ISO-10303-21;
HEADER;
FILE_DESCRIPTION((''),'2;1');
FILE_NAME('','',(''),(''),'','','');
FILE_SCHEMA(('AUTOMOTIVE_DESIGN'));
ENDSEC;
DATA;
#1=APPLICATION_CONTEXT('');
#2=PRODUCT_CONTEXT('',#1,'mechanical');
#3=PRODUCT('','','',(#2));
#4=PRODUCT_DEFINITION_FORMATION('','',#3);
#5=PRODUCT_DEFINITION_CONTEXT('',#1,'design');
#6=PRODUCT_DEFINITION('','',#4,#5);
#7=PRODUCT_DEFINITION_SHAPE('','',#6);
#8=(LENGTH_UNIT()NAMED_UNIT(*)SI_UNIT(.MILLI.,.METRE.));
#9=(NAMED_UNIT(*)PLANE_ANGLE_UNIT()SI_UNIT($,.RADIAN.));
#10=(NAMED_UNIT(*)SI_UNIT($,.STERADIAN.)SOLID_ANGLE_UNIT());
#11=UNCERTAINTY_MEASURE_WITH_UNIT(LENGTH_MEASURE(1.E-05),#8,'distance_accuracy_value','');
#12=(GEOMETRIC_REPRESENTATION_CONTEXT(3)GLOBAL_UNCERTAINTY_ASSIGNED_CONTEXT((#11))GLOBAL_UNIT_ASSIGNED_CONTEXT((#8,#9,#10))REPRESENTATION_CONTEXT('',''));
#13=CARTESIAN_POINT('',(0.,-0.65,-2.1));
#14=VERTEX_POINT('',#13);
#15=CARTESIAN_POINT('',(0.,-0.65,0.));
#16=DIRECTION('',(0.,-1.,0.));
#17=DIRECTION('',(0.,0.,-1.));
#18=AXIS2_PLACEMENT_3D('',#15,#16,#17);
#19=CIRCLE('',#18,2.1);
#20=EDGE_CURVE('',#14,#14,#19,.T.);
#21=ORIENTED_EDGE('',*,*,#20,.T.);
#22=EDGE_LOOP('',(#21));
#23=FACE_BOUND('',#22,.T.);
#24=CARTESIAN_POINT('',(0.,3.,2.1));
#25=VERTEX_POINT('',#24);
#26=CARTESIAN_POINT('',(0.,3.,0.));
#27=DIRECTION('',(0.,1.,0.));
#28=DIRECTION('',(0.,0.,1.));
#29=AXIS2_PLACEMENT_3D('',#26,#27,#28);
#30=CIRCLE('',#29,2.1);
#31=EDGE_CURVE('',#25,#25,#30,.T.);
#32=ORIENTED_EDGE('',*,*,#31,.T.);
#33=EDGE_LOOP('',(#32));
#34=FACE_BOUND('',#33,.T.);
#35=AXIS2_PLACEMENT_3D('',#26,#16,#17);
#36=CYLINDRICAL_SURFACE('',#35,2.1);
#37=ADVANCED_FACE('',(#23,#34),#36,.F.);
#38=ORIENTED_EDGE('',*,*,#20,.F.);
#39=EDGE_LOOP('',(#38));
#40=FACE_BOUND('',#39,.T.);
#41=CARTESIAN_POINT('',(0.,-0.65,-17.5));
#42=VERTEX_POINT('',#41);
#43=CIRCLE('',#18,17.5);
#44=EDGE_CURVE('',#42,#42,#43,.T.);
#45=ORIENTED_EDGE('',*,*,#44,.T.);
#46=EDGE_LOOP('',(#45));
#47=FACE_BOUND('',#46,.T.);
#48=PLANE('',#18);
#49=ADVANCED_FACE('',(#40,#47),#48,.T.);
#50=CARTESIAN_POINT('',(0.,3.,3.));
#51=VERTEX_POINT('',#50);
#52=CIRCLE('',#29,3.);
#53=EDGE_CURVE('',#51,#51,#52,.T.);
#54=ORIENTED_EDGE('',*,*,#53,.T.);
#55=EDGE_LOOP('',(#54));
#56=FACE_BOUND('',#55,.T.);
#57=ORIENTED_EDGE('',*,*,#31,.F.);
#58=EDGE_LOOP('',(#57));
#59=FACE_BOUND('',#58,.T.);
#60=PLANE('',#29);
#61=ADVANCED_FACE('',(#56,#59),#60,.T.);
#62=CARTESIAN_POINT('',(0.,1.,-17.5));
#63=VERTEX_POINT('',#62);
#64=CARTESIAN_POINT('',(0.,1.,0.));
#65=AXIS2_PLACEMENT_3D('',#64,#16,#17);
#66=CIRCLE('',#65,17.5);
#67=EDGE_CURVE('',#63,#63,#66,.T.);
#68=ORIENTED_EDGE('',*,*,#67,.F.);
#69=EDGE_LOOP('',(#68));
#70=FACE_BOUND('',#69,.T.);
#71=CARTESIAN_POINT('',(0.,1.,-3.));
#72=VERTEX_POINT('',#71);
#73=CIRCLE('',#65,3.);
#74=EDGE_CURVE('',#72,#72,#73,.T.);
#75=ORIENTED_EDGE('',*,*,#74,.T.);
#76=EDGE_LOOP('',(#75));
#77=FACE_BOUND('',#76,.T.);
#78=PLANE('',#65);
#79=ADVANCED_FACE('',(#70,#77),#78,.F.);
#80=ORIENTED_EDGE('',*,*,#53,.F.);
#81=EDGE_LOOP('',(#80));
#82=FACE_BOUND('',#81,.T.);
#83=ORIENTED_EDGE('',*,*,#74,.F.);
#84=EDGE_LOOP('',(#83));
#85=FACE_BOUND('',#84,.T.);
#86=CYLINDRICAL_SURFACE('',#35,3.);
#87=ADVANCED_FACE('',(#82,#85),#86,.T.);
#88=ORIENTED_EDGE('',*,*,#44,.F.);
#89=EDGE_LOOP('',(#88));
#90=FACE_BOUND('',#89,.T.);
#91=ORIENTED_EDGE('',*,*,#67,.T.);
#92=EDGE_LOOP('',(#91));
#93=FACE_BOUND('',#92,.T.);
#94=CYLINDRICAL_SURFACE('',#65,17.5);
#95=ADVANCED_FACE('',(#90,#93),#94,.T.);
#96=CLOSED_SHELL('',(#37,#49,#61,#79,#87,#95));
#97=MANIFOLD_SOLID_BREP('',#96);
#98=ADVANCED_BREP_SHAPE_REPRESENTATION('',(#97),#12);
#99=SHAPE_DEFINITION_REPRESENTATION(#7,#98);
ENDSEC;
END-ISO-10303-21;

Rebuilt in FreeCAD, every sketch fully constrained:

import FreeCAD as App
import Part
import Sketcher

V = App.Vector

doc = App.newDocument("Part")
body = doc.addObject("PartDesign::Body", "Body")

# Sketch on XZ plane
sketch1 = body.newObject("Sketcher::SketchObject", "Sketch")
sketch1.AttachmentSupport = (doc.getObject("XZ_Plane"), [""])
sketch1.MapMode = "FlatFace"
sketch1.addGeometry(Part.Circle(V(0, 0, 0), V(0, 0, 1), 3), False)
sketch1.addGeometry(Part.Circle(V(0, 0, 0), V(0, 0, 1), 2.1), False)
sketch1.addConstraint(Sketcher.Constraint("Coincident", 0, 3, -1, 1))
sketch1.addConstraint(Sketcher.Constraint("Coincident", 1, 3, -1, 1))
sketch1.addConstraint(Sketcher.Constraint("Diameter", 0, 6.0))
sketch1.addConstraint(Sketcher.Constraint("Diameter", 1, 4.2))
pad1 = body.newObject("PartDesign::Pad", "Pad")
pad1.Profile = sketch1
pad1.Length = 3
pad1.Reversed = True

# Sketch on XZ plane
sketch2 = body.newObject("Sketcher::SketchObject", "Sketch001")
sketch2.AttachmentSupport = (doc.getObject("XZ_Plane"), [""])
sketch2.MapMode = "FlatFace"
sketch2.addGeometry(Part.Circle(V(0, 0, 0), V(0, 0, 1), 17.5), False)
sketch2.addGeometry(Part.Circle(V(0, 0, 0), V(0, 0, 1), 2.1), False)
sketch2.addConstraint(Sketcher.Constraint("Coincident", 0, 3, -1, 1))
sketch2.addConstraint(Sketcher.Constraint("Coincident", 1, 3, -1, 1))
sketch2.addConstraint(Sketcher.Constraint("Diameter", 0, 35.0))
sketch2.addConstraint(Sketcher.Constraint("Diameter", 1, 4.2))
pad2 = body.newObject("PartDesign::Pad", "Pad001")
pad2.Profile = sketch2
pad2.Type = "TwoLengths"
pad2.Length = 0.65
pad2.Length2 = 1

doc.recompute()
